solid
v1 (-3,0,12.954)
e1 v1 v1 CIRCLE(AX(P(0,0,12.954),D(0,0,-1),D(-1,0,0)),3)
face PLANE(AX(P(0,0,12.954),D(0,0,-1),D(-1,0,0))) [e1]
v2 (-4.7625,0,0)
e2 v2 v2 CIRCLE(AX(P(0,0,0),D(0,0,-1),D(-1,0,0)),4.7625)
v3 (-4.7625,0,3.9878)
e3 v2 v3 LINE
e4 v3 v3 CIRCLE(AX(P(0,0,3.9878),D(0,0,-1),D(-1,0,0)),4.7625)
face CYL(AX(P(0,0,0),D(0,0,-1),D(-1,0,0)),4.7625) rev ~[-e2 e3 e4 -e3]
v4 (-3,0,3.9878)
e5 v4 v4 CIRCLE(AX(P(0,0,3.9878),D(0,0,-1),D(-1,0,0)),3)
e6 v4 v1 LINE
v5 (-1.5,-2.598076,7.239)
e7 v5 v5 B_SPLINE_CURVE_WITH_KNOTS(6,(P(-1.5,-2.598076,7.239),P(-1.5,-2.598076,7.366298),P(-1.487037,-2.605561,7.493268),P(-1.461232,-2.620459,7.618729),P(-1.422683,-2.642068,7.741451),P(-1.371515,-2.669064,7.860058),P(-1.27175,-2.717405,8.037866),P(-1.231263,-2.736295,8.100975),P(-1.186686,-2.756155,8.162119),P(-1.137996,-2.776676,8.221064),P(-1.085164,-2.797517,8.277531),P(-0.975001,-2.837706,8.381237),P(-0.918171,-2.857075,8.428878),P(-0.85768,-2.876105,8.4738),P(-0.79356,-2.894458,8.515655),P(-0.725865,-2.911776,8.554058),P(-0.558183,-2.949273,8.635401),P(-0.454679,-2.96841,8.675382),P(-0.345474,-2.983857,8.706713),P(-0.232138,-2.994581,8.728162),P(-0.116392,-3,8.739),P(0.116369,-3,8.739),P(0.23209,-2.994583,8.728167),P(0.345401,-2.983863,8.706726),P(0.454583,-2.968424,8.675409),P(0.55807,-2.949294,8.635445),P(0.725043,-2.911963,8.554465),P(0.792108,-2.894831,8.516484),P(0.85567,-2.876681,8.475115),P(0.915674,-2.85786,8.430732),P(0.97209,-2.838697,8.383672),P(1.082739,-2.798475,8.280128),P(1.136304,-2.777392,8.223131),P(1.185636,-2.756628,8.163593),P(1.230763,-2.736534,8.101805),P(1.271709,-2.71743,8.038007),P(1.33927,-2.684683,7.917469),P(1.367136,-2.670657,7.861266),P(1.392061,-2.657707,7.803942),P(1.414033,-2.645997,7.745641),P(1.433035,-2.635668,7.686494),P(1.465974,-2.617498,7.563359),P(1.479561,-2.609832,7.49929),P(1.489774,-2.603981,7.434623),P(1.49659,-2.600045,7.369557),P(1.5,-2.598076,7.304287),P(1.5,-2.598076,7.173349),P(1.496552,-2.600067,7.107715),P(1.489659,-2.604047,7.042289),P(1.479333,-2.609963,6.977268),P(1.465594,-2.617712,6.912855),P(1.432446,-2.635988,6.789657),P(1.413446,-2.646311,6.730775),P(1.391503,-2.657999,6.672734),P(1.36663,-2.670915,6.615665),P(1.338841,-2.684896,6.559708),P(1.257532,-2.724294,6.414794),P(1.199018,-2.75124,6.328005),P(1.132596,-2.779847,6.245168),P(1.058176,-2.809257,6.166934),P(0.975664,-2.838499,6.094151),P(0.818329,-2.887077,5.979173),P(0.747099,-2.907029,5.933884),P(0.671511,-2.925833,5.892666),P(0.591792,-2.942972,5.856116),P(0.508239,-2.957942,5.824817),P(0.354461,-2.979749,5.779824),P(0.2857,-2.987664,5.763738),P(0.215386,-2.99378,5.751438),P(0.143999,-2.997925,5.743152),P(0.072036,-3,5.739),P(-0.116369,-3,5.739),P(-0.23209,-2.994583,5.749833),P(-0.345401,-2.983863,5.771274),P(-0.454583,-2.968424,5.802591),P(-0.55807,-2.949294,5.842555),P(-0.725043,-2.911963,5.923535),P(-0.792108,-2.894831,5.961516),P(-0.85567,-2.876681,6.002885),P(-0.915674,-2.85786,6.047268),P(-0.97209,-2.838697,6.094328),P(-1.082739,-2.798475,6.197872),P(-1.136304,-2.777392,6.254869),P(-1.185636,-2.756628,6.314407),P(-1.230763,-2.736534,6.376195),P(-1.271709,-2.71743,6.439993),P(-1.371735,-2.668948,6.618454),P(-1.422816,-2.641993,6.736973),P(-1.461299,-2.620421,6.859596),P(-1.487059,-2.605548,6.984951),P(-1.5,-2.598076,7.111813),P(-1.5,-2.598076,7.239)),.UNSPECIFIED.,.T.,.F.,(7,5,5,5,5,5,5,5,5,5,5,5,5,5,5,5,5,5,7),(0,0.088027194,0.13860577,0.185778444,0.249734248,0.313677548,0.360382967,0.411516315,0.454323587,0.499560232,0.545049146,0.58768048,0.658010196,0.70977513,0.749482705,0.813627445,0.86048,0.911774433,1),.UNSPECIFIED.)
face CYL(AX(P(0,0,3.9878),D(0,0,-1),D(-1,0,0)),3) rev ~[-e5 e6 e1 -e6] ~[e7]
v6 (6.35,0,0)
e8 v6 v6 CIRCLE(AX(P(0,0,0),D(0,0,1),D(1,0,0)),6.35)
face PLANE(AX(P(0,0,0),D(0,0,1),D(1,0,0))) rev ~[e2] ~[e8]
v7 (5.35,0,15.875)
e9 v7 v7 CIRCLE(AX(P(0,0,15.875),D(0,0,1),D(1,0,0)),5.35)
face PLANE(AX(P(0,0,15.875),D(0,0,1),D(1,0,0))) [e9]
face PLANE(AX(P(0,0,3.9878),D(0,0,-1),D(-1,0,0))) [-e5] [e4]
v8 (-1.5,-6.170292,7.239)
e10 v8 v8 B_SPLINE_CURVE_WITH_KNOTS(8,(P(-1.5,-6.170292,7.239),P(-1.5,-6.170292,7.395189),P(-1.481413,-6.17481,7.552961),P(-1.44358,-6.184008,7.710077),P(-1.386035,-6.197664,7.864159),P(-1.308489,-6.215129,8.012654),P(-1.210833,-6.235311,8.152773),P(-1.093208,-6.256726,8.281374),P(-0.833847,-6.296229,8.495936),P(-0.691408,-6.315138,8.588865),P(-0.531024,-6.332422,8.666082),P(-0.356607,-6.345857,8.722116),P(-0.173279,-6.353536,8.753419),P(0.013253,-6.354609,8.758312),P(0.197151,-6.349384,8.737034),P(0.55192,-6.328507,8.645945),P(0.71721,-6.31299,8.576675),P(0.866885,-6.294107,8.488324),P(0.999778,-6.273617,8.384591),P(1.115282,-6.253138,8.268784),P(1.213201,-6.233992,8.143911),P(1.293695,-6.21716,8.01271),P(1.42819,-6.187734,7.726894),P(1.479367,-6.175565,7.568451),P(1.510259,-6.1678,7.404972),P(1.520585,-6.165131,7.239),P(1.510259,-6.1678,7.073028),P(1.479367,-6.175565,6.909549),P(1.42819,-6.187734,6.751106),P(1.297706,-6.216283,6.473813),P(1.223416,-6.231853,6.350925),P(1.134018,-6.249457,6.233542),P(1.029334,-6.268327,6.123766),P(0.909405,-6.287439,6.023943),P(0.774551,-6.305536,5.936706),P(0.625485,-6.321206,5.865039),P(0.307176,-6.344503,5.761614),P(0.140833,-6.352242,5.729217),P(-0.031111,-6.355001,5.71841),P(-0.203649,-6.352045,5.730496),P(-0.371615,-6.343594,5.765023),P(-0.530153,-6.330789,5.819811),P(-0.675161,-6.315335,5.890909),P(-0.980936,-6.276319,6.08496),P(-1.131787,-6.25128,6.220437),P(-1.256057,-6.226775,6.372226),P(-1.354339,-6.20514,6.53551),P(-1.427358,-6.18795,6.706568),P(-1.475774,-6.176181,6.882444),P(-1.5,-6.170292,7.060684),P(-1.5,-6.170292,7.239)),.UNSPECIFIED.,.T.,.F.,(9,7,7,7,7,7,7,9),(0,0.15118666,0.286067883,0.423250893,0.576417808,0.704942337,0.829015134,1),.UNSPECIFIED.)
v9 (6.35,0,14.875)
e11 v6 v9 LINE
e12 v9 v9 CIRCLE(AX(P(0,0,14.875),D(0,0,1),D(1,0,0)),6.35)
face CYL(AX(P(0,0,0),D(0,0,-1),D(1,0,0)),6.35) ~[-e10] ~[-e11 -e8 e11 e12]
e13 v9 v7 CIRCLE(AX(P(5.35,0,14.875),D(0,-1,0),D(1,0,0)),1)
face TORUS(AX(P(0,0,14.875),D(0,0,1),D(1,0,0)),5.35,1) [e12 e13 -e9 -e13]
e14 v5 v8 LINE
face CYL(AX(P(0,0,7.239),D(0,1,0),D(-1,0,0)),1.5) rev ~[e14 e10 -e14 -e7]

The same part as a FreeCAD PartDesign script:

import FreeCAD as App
import Part
import Sketcher
from FreeCAD import Vector
Q = App.Units.Quantity


def edges_at(feature, points):
    """Names of the edges that pass closest to the given points."""
    edges = feature.Shape.Edges
    near = lambda p: min(range(len(edges)), key=lambda i: edges[i].distToShape(Part.Vertex(*p))[0])
    return sorted({f"Edge{near(p) + 1}" for p in points})

doc = App.newDocument("Part")
body = doc.addObject("PartDesign::Body", "Body")

# Sketch on XY plane
sketch1 = body.newObject("Sketcher::SketchObject", "Sketch")
sketch1.AttachmentSupport = (doc.getObject("XY_Plane"), [""])
sketch1.MapMode = "FlatFace"
sketch1.addGeometry(Part.Circle(Vector(0, 0, 0), Vector(0, 0, 1), 6), False)
sketch1.addConstraint(Sketcher.Constraint("Coincident", 0, 3, -1, 1))
sketch1.addConstraint(Sketcher.Constraint("Diameter", 0, Q("0.5 in")))
pad1 = body.newObject("PartDesign::Pad", "Pad")
pad1.Profile = sketch1
pad1.Length = Q("0.625 in")
doc.recompute()

fillet = body.newObject("PartDesign::Fillet", "Fillet")
fillet.Base = (pad1, edges_at(pad1, [(-6.35, 0, 15.875)]))
fillet.Radius = 1

# Sketch on XY plane
sketch2 = body.newObject("Sketcher::SketchObject", "Sketch001")
sketch2.AttachmentSupport = (doc.getObject("XY_Plane"), [""])
sketch2.MapMode = "FlatFace"
sketch2.addGeometry(Part.Circle(Vector(0, 0, 0), Vector(0, 0, 1), 4.8), False)
sketch2.addConstraint(Sketcher.Constraint("Coincident", 0, 3, -1, 1))
sketch2.addConstraint(Sketcher.Constraint("Diameter", 0, Q("0.375 in")))
pocket1 = body.newObject("PartDesign::Pocket", "Pocket")
pocket1.Profile = sketch2
pocket1.Length = Q("0.157 in")
pocket1.Reversed = True

# Sketch on XY plane
sketch3 = body.newObject("Sketcher::SketchObject", "Sketch002")
sketch3.AttachmentSupport = (doc.getObject("XY_Plane"), [""])
sketch3.MapMode = "FlatFace"
sketch3.AttachmentOffset = App.Placement(Vector(0, 0, 0.157 * 25.4), App.Rotation())
sketch3.addGeometry(Part.Circle(Vector(0, 0, 0), Vector(0, 0, 1), 3), False)
sketch3.addConstraint(Sketcher.Constraint("Coincident", 0, 3, -1, 1))
sketch3.addConstraint(Sketcher.Constraint("Diameter", 0, 6.0))
pocket2 = body.newObject("PartDesign::Pocket", "Pocket001")
pocket2.Profile = sketch3
pocket2.Length = Q("0.353 in")
pocket2.Reversed = True

# Sketch on XZ plane
sketch4 = body.newObject("Sketcher::SketchObject", "Sketch003")
sketch4.AttachmentSupport = (doc.getObject("XZ_Plane"), [""])
sketch4.MapMode = "FlatFace"
sketch4.addGeometry(Part.Circle(Vector(0, 7.2, 0), Vector(0, 0, 1), 1.5), False)
sketch4.addConstraint(Sketcher.Constraint("PointOnObject", 0, 3, -2))
sketch4.addConstraint(Sketcher.Constraint("Diameter", 0, Q("0.1181 in")))
sketch4.addConstraint(Sketcher.Constraint("DistanceY", -1, 1, 0, 3, Q("0.285 in")))
pocket3 = body.newObject("PartDesign::Pocket", "Pocket002")
pocket3.Profile = sketch4
pocket3.Length = Q("0.667 in")
pocket3.Reversed = True

doc.recompute()
